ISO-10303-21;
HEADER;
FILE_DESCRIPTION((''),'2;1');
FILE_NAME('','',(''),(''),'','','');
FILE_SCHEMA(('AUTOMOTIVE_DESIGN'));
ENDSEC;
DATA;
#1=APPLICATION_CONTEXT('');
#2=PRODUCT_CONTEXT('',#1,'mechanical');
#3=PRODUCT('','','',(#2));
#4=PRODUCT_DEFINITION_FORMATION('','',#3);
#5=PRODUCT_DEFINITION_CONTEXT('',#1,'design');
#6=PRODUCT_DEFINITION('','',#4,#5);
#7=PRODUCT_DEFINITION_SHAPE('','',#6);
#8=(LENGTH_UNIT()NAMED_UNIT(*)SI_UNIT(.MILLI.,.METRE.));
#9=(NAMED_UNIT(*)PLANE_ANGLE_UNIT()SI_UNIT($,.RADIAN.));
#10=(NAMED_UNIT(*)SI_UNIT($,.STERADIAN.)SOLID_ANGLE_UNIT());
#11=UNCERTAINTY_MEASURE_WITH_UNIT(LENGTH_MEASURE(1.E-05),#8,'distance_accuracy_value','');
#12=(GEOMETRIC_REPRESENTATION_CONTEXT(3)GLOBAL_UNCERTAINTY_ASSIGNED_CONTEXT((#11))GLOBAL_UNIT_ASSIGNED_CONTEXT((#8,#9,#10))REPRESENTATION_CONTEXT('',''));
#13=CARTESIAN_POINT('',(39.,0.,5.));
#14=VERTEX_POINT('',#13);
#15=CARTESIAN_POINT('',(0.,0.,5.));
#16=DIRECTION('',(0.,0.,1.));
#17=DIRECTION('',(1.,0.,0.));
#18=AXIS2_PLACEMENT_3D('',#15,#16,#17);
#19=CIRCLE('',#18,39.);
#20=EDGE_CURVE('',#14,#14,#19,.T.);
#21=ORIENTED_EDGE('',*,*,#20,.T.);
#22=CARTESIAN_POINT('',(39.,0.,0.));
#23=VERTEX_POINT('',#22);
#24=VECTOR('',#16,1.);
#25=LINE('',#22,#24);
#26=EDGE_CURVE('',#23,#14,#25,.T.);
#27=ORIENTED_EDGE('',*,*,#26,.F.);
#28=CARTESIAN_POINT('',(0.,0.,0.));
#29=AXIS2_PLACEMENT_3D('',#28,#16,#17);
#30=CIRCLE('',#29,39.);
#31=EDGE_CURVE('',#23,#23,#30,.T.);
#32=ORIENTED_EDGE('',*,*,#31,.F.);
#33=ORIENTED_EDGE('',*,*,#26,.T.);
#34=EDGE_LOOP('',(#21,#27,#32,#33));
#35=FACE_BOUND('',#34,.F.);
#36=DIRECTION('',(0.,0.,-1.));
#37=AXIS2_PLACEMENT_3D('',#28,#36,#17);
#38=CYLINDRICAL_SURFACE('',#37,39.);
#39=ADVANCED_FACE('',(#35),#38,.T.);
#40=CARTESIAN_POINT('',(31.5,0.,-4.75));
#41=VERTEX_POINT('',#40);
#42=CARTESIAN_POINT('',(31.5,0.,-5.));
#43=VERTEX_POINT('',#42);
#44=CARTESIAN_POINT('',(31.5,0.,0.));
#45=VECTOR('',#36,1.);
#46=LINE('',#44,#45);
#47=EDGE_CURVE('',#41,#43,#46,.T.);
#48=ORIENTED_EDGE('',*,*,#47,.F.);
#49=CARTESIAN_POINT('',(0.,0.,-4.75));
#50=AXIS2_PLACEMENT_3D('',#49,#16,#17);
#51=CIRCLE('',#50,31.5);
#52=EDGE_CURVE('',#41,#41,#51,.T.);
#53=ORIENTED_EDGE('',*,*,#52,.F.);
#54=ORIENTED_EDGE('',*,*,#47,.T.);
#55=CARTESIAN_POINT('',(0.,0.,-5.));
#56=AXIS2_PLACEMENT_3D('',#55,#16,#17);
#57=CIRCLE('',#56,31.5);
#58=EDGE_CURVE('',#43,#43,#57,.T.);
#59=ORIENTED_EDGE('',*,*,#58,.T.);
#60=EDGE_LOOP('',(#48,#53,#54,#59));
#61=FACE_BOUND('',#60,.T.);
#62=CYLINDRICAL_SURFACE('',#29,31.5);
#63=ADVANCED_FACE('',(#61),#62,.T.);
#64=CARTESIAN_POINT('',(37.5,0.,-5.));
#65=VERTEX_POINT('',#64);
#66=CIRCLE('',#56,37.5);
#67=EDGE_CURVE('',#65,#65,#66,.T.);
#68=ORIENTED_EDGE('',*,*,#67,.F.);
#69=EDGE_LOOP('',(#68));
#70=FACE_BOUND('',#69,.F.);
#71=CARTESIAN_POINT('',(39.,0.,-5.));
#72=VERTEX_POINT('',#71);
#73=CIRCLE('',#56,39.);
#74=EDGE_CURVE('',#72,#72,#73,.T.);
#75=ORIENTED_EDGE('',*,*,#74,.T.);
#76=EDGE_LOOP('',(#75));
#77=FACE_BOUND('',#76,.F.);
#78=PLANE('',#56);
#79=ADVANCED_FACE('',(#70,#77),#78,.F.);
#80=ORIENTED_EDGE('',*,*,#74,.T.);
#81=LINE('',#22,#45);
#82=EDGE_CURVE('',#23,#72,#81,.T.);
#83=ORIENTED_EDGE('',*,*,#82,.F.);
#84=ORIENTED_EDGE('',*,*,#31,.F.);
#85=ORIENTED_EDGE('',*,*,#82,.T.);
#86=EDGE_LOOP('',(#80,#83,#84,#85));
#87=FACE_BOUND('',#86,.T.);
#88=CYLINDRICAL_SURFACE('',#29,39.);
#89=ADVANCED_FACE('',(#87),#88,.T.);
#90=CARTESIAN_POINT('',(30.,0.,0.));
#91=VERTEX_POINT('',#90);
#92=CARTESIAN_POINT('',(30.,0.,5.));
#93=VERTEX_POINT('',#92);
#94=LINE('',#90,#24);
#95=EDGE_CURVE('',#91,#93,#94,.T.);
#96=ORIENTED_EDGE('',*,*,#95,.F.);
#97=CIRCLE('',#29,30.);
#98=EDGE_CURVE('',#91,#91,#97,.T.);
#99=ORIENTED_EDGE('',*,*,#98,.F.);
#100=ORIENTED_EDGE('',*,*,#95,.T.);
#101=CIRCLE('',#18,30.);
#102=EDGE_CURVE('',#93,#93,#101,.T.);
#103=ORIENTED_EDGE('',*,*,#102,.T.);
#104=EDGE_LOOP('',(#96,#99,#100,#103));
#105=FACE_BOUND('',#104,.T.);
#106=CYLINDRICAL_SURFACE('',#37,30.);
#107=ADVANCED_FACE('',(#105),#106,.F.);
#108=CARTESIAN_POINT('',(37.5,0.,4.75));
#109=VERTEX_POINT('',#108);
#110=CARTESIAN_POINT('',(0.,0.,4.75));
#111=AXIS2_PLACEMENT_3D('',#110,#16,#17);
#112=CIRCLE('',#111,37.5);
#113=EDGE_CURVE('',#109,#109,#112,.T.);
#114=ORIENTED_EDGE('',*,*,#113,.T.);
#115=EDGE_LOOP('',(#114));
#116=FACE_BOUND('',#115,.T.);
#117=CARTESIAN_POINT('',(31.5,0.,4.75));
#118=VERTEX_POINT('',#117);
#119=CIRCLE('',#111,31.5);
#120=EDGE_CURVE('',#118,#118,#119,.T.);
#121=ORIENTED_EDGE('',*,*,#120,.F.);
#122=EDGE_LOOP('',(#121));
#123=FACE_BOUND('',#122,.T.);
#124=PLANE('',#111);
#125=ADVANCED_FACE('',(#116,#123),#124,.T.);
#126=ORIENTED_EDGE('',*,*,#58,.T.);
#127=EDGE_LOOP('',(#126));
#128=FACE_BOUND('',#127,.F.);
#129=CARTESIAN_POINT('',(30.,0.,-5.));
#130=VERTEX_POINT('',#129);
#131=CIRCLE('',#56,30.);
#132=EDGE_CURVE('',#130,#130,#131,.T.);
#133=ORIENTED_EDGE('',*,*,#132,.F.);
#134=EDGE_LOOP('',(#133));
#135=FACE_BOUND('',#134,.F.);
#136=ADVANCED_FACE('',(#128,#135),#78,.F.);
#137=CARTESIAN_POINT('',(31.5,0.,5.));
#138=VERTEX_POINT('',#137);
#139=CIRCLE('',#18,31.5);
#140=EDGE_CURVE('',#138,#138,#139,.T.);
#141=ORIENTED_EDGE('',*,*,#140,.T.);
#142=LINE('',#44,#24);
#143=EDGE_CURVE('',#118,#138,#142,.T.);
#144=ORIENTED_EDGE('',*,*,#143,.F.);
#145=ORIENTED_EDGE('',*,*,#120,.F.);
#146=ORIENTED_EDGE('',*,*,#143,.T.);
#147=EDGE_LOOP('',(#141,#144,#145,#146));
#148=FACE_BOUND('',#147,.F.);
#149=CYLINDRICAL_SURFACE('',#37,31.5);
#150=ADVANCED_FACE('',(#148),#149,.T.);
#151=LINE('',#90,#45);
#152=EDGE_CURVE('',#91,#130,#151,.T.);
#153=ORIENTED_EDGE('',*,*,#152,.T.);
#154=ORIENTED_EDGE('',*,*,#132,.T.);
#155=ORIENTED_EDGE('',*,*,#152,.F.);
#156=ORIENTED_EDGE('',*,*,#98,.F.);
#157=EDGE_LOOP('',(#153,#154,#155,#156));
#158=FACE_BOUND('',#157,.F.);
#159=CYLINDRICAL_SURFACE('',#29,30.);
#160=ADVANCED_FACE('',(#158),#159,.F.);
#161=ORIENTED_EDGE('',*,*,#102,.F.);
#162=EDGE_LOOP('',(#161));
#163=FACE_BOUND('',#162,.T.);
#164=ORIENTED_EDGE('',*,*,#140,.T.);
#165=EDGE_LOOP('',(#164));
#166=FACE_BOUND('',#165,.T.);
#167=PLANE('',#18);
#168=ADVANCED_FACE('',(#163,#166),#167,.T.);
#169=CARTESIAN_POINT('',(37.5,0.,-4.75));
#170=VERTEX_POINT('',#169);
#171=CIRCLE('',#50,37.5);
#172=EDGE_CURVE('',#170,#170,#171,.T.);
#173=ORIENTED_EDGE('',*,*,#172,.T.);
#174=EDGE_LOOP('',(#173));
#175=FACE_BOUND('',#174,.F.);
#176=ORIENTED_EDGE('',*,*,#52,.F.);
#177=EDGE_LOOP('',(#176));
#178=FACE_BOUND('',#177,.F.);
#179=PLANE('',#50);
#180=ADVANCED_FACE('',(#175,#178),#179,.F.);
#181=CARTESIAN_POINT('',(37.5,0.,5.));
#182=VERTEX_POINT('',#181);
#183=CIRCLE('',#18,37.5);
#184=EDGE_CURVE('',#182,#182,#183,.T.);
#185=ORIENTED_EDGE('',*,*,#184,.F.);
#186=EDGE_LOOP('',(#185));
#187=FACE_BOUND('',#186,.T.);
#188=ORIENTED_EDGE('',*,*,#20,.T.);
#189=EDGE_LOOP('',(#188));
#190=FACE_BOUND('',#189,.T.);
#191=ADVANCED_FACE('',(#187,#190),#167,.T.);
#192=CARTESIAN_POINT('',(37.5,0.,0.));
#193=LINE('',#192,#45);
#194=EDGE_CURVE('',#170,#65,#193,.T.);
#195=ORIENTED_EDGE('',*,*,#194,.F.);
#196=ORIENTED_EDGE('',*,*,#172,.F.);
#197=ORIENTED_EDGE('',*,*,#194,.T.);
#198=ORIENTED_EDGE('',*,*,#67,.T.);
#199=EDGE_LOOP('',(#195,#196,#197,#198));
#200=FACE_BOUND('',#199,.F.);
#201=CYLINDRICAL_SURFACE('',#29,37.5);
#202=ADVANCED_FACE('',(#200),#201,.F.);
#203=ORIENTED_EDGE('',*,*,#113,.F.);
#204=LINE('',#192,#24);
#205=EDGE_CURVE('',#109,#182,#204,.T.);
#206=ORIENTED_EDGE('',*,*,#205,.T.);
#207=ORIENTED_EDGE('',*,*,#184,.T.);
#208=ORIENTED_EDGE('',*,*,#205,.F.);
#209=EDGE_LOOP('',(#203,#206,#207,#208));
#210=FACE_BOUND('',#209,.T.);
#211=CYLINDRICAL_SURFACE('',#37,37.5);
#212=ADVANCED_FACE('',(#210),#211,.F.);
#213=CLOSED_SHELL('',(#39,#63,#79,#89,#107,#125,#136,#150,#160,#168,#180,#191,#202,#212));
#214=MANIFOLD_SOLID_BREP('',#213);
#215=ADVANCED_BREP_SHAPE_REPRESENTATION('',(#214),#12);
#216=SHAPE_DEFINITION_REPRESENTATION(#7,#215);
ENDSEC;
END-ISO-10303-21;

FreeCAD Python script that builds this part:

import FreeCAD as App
import Part
import Sketcher
Q = App.Units.Quantity

doc = App.newDocument("Part")
body = doc.addObject("PartDesign::Body", "Body")
body.AllowCompound = True

sketch1 = body.newObject("Sketcher::SketchObject", "Sketch")
sketch1.AttachmentSupport = (doc.getObject("XY_Plane"), [""])
sketch1.MapMode = "FlatFace"
sketch1.addGeometry([
    Part.Circle(App.Vector(0, 0, 0), App.Vector(0, 0, 1), 39),
    Part.Circle(App.Vector(0, 0, 0), App.Vector(0, 0, 1), 38),
    Part.Circle(App.Vector(0, 0, 0), App.Vector(0, 0, 1), 32),
    Part.Circle(App.Vector(0, 0, 0), App.Vector(0, 0, 1), 30),
], False)
sketch1.addConstraint([
    Sketcher.Constraint("Coincident", 0, 3, -1, 1),
    Sketcher.Constraint("Coincident", 1, 3, -1, 1),
    Sketcher.Constraint("Coincident", 2, 3, -1, 1),
    Sketcher.Constraint("Coincident", 3, 3, -1, 1),
    Sketcher.Constraint("Diameter", 0, Q("78 mm")),
    Sketcher.Constraint("Diameter", 3, Q("60 mm")),
    Sketcher.Constraint("Diameter", 1, Q("75 mm")),
    Sketcher.Constraint("Diameter", 2, Q("63 mm")),
])
pad1 = body.newObject("PartDesign::Pad", "Pad")
pad1.Profile = sketch1
pad1.Length = 10
pad1.Midplane = True

sketch2 = body.newObject("Sketcher::SketchObject", "Sketch001")
sketch2.AttachmentSupport = (doc.getObject("XY_Plane"), [""])
sketch2.MapMode = "FlatFace"
sketch2.addGeometry([
    Part.Circle(App.Vector(0, 0, 0), App.Vector(0, 0, 1), 38),
    Part.Circle(App.Vector(0, 0, 0), App.Vector(0, 0, 1), 32),
], False)
sketch2.addConstraint([
    Sketcher.Constraint("Coincident", 0, 3, -1, 1),
    Sketcher.Constraint("Coincident", 1, 3, -1, 1),
    Sketcher.Constraint("Diameter", 0, Q("75 mm")),
    Sketcher.Constraint("Diameter", 1, Q("63 mm")),
])
pad2 = body.newObject("PartDesign::Pad", "Pad001")
pad2.Profile = sketch2
pad2.Length = 9.5
pad2.Midplane = True

doc.recompute()
